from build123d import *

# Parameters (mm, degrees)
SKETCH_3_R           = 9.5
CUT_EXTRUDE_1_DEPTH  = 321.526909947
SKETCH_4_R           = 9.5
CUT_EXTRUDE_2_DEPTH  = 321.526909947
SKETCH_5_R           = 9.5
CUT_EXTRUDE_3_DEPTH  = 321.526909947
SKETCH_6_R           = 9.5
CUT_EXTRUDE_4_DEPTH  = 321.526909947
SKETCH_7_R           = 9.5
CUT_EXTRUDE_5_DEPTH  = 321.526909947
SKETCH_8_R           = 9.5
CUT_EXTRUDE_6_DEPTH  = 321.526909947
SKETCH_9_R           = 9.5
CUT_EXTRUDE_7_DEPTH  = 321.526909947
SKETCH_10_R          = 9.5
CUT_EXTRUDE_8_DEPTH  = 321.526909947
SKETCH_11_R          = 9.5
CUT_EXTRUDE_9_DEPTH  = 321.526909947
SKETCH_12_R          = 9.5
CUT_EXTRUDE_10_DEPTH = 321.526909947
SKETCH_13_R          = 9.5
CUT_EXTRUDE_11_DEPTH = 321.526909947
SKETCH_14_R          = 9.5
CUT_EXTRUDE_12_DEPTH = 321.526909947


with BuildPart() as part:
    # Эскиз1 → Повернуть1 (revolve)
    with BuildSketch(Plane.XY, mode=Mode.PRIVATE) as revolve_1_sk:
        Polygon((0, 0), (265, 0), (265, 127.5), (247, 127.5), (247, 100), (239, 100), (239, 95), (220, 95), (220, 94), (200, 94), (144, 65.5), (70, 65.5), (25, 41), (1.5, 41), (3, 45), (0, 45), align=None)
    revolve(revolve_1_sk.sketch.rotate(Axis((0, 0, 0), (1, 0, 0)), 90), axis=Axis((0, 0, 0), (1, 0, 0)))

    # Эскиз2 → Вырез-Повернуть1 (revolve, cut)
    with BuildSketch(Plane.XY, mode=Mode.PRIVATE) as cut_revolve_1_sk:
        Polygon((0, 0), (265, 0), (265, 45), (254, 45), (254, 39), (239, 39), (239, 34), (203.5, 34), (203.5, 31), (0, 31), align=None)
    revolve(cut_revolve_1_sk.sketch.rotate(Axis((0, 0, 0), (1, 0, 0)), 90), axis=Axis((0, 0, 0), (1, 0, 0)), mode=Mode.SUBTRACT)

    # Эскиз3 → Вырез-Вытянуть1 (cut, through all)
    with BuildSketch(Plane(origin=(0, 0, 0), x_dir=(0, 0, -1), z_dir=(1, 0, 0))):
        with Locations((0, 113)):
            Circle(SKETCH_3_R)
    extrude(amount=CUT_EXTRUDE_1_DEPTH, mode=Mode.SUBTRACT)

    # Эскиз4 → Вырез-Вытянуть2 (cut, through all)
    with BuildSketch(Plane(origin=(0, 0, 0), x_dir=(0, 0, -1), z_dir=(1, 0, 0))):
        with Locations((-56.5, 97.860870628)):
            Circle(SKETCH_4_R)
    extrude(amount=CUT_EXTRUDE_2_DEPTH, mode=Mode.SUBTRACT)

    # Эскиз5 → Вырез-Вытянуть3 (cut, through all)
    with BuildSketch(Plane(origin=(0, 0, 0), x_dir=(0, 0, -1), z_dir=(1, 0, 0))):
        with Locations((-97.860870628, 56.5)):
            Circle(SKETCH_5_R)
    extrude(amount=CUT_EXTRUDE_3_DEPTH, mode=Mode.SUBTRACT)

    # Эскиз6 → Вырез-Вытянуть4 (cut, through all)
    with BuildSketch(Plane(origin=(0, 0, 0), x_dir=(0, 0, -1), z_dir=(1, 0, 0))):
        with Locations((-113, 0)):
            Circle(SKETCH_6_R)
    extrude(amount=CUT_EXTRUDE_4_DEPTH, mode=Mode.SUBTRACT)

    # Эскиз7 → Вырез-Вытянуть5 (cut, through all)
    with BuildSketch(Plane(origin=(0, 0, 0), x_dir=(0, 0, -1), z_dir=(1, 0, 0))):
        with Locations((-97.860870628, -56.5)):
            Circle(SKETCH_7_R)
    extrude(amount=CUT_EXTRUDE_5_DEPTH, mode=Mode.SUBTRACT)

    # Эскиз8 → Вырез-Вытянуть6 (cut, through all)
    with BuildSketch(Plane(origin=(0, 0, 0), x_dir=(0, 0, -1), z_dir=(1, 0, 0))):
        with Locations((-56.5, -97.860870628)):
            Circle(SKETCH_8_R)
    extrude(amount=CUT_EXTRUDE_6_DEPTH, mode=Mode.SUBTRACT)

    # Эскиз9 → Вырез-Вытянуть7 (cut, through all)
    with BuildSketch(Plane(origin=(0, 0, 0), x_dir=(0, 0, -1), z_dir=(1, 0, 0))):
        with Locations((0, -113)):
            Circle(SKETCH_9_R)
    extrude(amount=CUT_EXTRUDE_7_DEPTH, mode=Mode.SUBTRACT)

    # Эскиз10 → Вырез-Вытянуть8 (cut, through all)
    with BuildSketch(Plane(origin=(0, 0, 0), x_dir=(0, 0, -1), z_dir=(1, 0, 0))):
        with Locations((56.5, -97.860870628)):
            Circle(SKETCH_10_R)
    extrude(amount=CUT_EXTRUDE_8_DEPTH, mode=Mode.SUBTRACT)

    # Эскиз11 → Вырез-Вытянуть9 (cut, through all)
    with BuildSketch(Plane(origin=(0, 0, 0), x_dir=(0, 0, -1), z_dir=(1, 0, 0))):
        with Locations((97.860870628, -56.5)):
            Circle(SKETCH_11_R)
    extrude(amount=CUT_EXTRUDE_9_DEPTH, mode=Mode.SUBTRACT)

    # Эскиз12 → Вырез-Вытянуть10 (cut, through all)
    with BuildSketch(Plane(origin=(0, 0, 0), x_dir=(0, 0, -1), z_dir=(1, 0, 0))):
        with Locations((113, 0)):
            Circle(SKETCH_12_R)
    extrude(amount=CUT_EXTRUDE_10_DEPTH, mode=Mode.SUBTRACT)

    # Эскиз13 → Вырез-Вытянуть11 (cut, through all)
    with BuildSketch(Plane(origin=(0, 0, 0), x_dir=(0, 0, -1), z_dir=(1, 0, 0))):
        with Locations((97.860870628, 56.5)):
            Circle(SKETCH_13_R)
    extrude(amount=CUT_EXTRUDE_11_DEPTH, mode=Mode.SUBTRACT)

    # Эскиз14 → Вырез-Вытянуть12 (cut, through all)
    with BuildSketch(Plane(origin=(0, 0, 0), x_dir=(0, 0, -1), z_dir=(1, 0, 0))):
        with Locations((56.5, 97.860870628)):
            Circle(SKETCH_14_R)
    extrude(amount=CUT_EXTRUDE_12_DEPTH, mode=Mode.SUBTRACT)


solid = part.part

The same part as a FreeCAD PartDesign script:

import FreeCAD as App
import Part
import Sketcher
from FreeCAD import Vector

doc = App.newDocument("Part")
params = doc.addObject("Spreadsheet::Sheet", "Params")
for row, (alias, value) in enumerate([
    ("sketch1_width", "265 mm"),
    ("sketch1_width2", "18 mm"),
    ("sketch1_width3", "8 mm"),
    ("sketch1_width4", "19 mm"),
    ("sketch1_width5", "20 mm"),
    ("revolution_angle", "360 deg"),
    ("sketch2_width", "265 mm"),
    ("sketch2_width2", "11 mm"),
    ("sketch2_width3", "15 mm"),
    ("sketch2_height", "45 mm"),
    ("sketch2_height2", "6 mm"),
    ("groove_angle", "360 deg"),
    ("sketch3_diameter", "19 mm"),
    ("sketch4_diameter", "19 mm"),
    ("sketch5_diameter", "19 mm"),
    ("sketch6_diameter", "19 mm"),
    ("sketch7_diameter", "19 mm"),
    ("sketch8_diameter", "19 mm"),
    ("sketch9_diameter", "19 mm"),
    ("sketch10_diameter", "19 mm"),
    ("sketch11_diameter", "19 mm"),
    ("sketch12_diameter", "19 mm"),
    ("sketch13_diameter", "19 mm"),
    ("sketch14_diameter", "19 mm"),
], start=1):
    params.set(f"A{row}", alias)
    params.set(f"B{row}", "=" + value)
    params.setAlias(f"B{row}", alias)

body = doc.addObject("PartDesign::Body", "Body")

# Sketch on XY plane
sketch1 = body.newObject("Sketcher::SketchObject", "Sketch")
sketch1.AttachmentSupport = (doc.getObject("XY_Plane"), [""])
sketch1.MapMode = "FlatFace"
sketch1.addGeometry([
    Part.LineSegment(Vector(0, 0, 0), Vector(265, 0, 0)),  # 0
    Part.LineSegment(Vector(265, 0, 0), Vector(265, 127.5, 0)),  # 1
    Part.LineSegment(Vector(265, 127.5, 0), Vector(247, 127.5, 0)),  # 2
    Part.LineSegment(Vector(247, 127.5, 0), Vector(247, 100, 0)),  # 3
    Part.LineSegment(Vector(247, 100, 0), Vector(239, 100, 0)),  # 4
    Part.LineSegment(Vector(239, 100, 0), Vector(239, 95, 0)),  # 5
    Part.LineSegment(Vector(239, 95, 0), Vector(220, 95, 0)),  # 6
    Part.LineSegment(Vector(220, 95, 0), Vector(220, 94, 0)),  # 7
    Part.LineSegment(Vector(220, 94, 0), Vector(200, 94, 0)),  # 8
    Part.LineSegment(Vector(200, 94, 0), Vector(144, 65.5, 0)),  # 9
    Part.LineSegment(Vector(144, 65.5, 0), Vector(70, 65.5, 0)),  # 10
    Part.LineSegment(Vector(70, 65.5, 0), Vector(25, 41, 0)),  # 11
    Part.LineSegment(Vector(25, 41, 0), Vector(1.5, 41, 0)),  # 12
    Part.LineSegment(Vector(1.5, 41, 0), Vector(3, 45, 0)),  # 13
    Part.LineSegment(Vector(3, 45, 0), Vector(0, 45, 0)),  # 14
    Part.LineSegment(Vector(0, 45, 0), Vector(0, 0, 0)),  # 15
], False)
sketch1.addConstraint([
    Sketcher.Constraint("Coincident", 0, 2, 1, 1),
    Sketcher.Constraint("Coincident", 1, 2, 2, 1),
    Sketcher.Constraint("Coincident", 2, 2, 3, 1),
    Sketcher.Constraint("Coincident", 3, 2, 4, 1),
    Sketcher.Constraint("Coincident", 4, 2, 5, 1),
    Sketcher.Constraint("Coincident", 5, 2, 6, 1),
    Sketcher.Constraint("Coincident", 6, 2, 7, 1),
    Sketcher.Constraint("Coincident", 7, 2, 8, 1),
    Sketcher.Constraint("Coincident", 8, 2, 9, 1),
    Sketcher.Constraint("Coincident", 9, 2, 10, 1),
    Sketcher.Constraint("Coincident", 10, 2, 11, 1),
    Sketcher.Constraint("Coincident", 11, 2, 12, 1),
    Sketcher.Constraint("Coincident", 12, 2, 13, 1),
    Sketcher.Constraint("Coincident", 13, 2, 14, 1),
    Sketcher.Constraint("Coincident", 14, 2, 15, 1),
    Sketcher.Constraint("Coincident", 15, 2, 0, 1),
    Sketcher.Constraint("Horizontal", 0),
    Sketcher.Constraint("Vertical", 1),
    Sketcher.Constraint("Horizontal", 2),
    Sketcher.Constraint("Vertical", 3),
    Sketcher.Constraint("Horizontal", 4),
    Sketcher.Constraint("Vertical", 5),
    Sketcher.Constraint("Horizontal", 6),
    Sketcher.Constraint("Vertical", 7),
    Sketcher.Constraint("Horizontal", 8),
    Sketcher.Constraint("Horizontal", 10),
    Sketcher.Constraint("Horizontal", 12),
    Sketcher.Constraint("Horizontal", 14),
    Sketcher.Constraint("Vertical", 15),
    Sketcher.Constraint("Coincident", 15, 2, -1, 1),
    Sketcher.Constraint("DistanceX", 0, 1, 0, 2, 265.0),
    Sketcher.Constraint("DistanceX", 2, 2, 2, 1, 18.0),
    Sketcher.Constraint("DistanceX", 4, 2, 4, 1, 8.0),
    Sketcher.Constraint("DistanceX", 6, 2, 6, 1, 19.0),
    Sketcher.Constraint("DistanceX", 8, 2, 8, 1, 20.0),
    Sketcher.Constraint("DistanceX", 10, 2, 10, 1, 74.0),
    Sketcher.Constraint("DistanceX", 14, 2, 14, 1, 3.0),
    Sketcher.Constraint("DistanceY", 5, 2, 5, 1, 5.0),
    Sketcher.Constraint("DistanceY", 7, 2, 7, 1, 1.0),
    Sketcher.Constraint("DistanceY", 15, 2, 15, 1, 45.0),
    Sketcher.Constraint("DistanceX", 12, 2, 12, 1, 23.5),
    Sketcher.Constraint("DistanceY", 1, 1, 1, 2, 127.5),
    Sketcher.Constraint("DistanceY", 3, 2, 3, 1, 27.5),
    Sketcher.Constraint("DistanceX", -1, 1, 9, 2, 144.0),
    Sketcher.Constraint("DistanceX", -1, 1, 11, 2, 25.0),
    Sketcher.Constraint("DistanceY", -1, 1, 11, 2, 41.0),
    Sketcher.Constraint("DistanceY", -1, 1, 9, 2, 65.5),
])
sketch1.setExpression("Constraints[30]", "Params.sketch1_width")
sketch1.setExpression("Constraints[31]", "Params.sketch1_width2")
sketch1.setExpression("Constraints[32]", "Params.sketch1_width3")
sketch1.setExpression("Constraints[33]", "Params.sketch1_width4")
sketch1.setExpression("Constraints[34]", "Params.sketch1_width5")
revolution = body.newObject("PartDesign::Revolution", "Revolution")
revolution.Profile = sketch1
revolution.ReferenceAxis = (sketch1, ["H_Axis"])
revolution.setExpression("Angle", "Params.revolution_angle")

# Sketch on XY plane
sketch2 = body.newObject("Sketcher::SketchObject", "Sketch001")
sketch2.AttachmentSupport = (doc.getObject("XY_Plane"), [""])
sketch2.MapMode = "FlatFace"
sketch2.addGeometry([
    Part.LineSegment(Vector(0, 0, 0), Vector(265, 0, 0)),  # 0
    Part.LineSegment(Vector(265, 0, 0), Vector(265, 45, 0)),  # 1
    Part.LineSegment(Vector(265, 45, 0), Vector(254, 45, 0)),  # 2
    Part.LineSegment(Vector(254, 45, 0), Vector(254, 39, 0)),  # 3
    Part.LineSegment(Vector(254, 39, 0), Vector(239, 39, 0)),  # 4
    Part.LineSegment(Vector(239, 39, 0), Vector(239, 34, 0)),  # 5
    Part.LineSegment(Vector(239, 34, 0), Vector(203.5, 34, 0)),  # 6
    Part.LineSegment(Vector(203.5, 34, 0), Vector(203.5, 31, 0)),  # 7
    Part.LineSegment(Vector(203.5, 31, 0), Vector(0, 31, 0)),  # 8
    Part.LineSegment(Vector(0, 31, 0), Vector(0, 0, 0)),  # 9
], False)
sketch2.addConstraint([
    Sketcher.Constraint("Coincident", 0, 2, 1, 1),
    Sketcher.Constraint("Coincident", 1, 2, 2, 1),
    Sketcher.Constraint("Coincident", 2, 2, 3, 1),
    Sketcher.Constraint("Coincident", 3, 2, 4, 1),
    Sketcher.Constraint("Coincident", 4, 2, 5, 1),
    Sketcher.Constraint("Coincident", 5, 2, 6, 1),
    Sketcher.Constraint("Coincident", 6, 2, 7, 1),
    Sketcher.Constraint("Coincident", 7, 2, 8, 1),
    Sketcher.Constraint("Coincident", 8, 2, 9, 1),
    Sketcher.Constraint("Coincident", 9, 2, 0, 1),
    Sketcher.Constraint("Horizontal", 0),
    Sketcher.Constraint("Vertical", 1),
    Sketcher.Constraint("Horizontal", 2),
    Sketcher.Constraint("Vertical", 3),
    Sketcher.Constraint("Horizontal", 4),
    Sketcher.Constraint("Vertical", 5),
    Sketcher.Constraint("Horizontal", 6),
    Sketcher.Constraint("Vertical", 7),
    Sketcher.Constraint("Horizontal", 8),
    Sketcher.Constraint("Vertical", 9),
    Sketcher.Constraint("Coincident", 9, 2, -1, 1),
    Sketcher.Constraint("DistanceX", 0, 1, 0, 2, 265.0),
    Sketcher.Constraint("DistanceX", 2, 2, 2, 1, 11.0),
    Sketcher.Constraint("DistanceX", 4, 2, 4, 1, 15.0),
    Sketcher.Constraint("DistanceY", 1, 1, 1, 2, 45.0),
    Sketcher.Constraint("DistanceY", 3, 2, 3, 1, 6.0),
    Sketcher.Constraint("DistanceY", 5, 2, 5, 1, 5.0),
    Sketcher.Constraint("DistanceY", 7, 2, 7, 1, 3.0),
    Sketcher.Constraint("DistanceX", 6, 2, 6, 1, 35.5),
])
sketch2.setExpression("Constraints[21]", "Params.sketch2_width")
sketch2.setExpression("Constraints[22]", "Params.sketch2_width2")
sketch2.setExpression("Constraints[23]", "Params.sketch2_width3")
sketch2.setExpression("Constraints[24]", "Params.sketch2_height")
sketch2.setExpression("Constraints[25]", "Params.sketch2_height2")
groove = body.newObject("PartDesign::Groove", "Groove")
groove.Profile = sketch2
groove.ReferenceAxis = (sketch2, ["H_Axis"])
groove.setExpression("Angle", "Params.groove_angle")

# Sketch on YZ plane
sketch3 = body.newObject("Sketcher::SketchObject", "Sketch002")
sketch3.AttachmentSupport = (doc.getObject("YZ_Plane"), [""])
sketch3.MapMode = "FlatFace"
sketch3.addGeometry(Part.Circle(Vector(113, 0, 0), Vector(0, 0, 1), 10), False)
sketch3.addConstraint([
    Sketcher.Constraint("PointOnObject", 0, 3, -1),
    Sketcher.Constraint("Diameter", 0, 19.0),
    Sketcher.Constraint("DistanceX", -1, 1, 0, 3, 113.0),
])
sketch3.setExpression("Constraints[1]", "Params.sketch3_diameter")
pocket1 = body.newObject("PartDesign::Pocket", "Pocket")
pocket1.Profile = sketch3
pocket1.Type = "ThroughAll"
pocket1.Reversed = True

# Sketch on YZ plane
sketch4 = body.newObject("Sketcher::SketchObject", "Sketch003")
sketch4.AttachmentSupport = (doc.getObject("YZ_Plane"), [""])
sketch4.MapMode = "FlatFace"
sketch4.addGeometry(Part.Circle(Vector(98, 56, 0), Vector(0, 0, 1), 10), False)
sketch4.addConstraint([
    Sketcher.Constraint("Diameter", 0, 19.0),
    Sketcher.Constraint("DistanceY", -1, 1, 0, 3, 56.5),
    Sketcher.Constraint("DistanceX", -1, 1, 0, 3, 97.860871),
])
sketch4.setExpression("Constraints[0]", "Params.sketch4_diameter")
pocket2 = body.newObject("PartDesign::Pocket", "Pocket001")
pocket2.Profile = sketch4
pocket2.Type = "ThroughAll"
pocket2.Reversed = True

# Sketch on YZ plane
sketch5 = body.newObject("Sketcher::SketchObject", "Sketch004")
sketch5.AttachmentSupport = (doc.getObject("YZ_Plane"), [""])
sketch5.MapMode = "FlatFace"
sketch5.addGeometry(Part.Circle(Vector(56, 98, 0), Vector(0, 0, 1), 10), False)
sketch5.addConstraint([
    Sketcher.Constraint("Diameter", 0, 19.0),
    Sketcher.Constraint("DistanceX", -1, 1, 0, 3, 56.5),
    Sketcher.Constraint("DistanceY", -1, 1, 0, 3, 97.860871),
])
sketch5.setExpression("Constraints[0]", "Params.sketch5_diameter")
pocket3 = body.newObject("PartDesign::Pocket", "Pocket002")
pocket3.Profile = sketch5
pocket3.Type = "ThroughAll"
pocket3.Reversed = True

# Sketch on YZ plane
sketch6 = body.newObject("Sketcher::SketchObject", "Sketch005")
sketch6.AttachmentSupport = (doc.getObject("YZ_Plane"), [""])
sketch6.MapMode = "FlatFace"
sketch6.addGeometry(Part.Circle(Vector(0, 113, 0), Vector(0, 0, 1), 10), False)
sketch6.addConstraint([
    Sketcher.Constraint("PointOnObject", 0, 3, -2),
    Sketcher.Constraint("Diameter", 0, 19.0),
    Sketcher.Constraint("DistanceY", -1, 1, 0, 3, 113.0),
])
sketch6.setExpression("Constraints[1]", "Params.sketch6_diameter")
pocket4 = body.newObject("PartDesign::Pocket", "Pocket003")
pocket4.Profile = sketch6
pocket4.Type = "ThroughAll"
pocket4.Reversed = True

# Sketch on YZ plane
sketch7 = body.newObject("Sketcher::SketchObject", "Sketch006")
sketch7.AttachmentSupport = (doc.getObject("YZ_Plane"), [""])
sketch7.MapMode = "FlatFace"
sketch7.addGeometry(Part.Circle(Vector(-56, 98, 0), Vector(0, 0, 1), 10), False)
sketch7.addConstraint([
    Sketcher.Constraint("Diameter", 0, 19.0),
    Sketcher.Constraint("DistanceX", 0, 3, -1, 1, 56.5),
    Sketcher.Constraint("DistanceY", -1, 1, 0, 3, 97.860871),
])
sketch7.setExpression("Constraints[0]", "Params.sketch7_diameter")
pocket5 = body.newObject("PartDesign::Pocket", "Pocket004")
pocket5.Profile = sketch7
pocket5.Type = "ThroughAll"
pocket5.Reversed = True

# Sketch on YZ plane
sketch8 = body.newObject("Sketcher::SketchObject", "Sketch007")
sketch8.AttachmentSupport = (doc.getObject("YZ_Plane"), [""])
sketch8.MapMode = "FlatFace"
sketch8.addGeometry(Part.Circle(Vector(-98, 56, 0), Vector(0, 0, 1), 10), False)
sketch8.addConstraint([
    Sketcher.Constraint("Diameter", 0, 19.0),
    Sketcher.Constraint("DistanceY", -1, 1, 0, 3, 56.5),
    Sketcher.Constraint("DistanceX", 0, 3, -1, 1, 97.860871),
])
sketch8.setExpression("Constraints[0]", "Params.sketch8_diameter")
pocket6 = body.newObject("PartDesign::Pocket", "Pocket005")
pocket6.Profile = sketch8
pocket6.Type = "ThroughAll"
pocket6.Reversed = True

# Sketch on YZ plane
sketch9 = body.newObject("Sketcher::SketchObject", "Sketch008")
sketch9.AttachmentSupport = (doc.getObject("YZ_Plane"), [""])
sketch9.MapMode = "FlatFace"
sketch9.addGeometry(Part.Circle(Vector(-113, 0, 0), Vector(0, 0, 1), 10), False)
sketch9.addConstraint([
    Sketcher.Constraint("PointOnObject", 0, 3, -1),
    Sketcher.Constraint("Diameter", 0, 19.0),
    Sketcher.Constraint("DistanceX", 0, 3, -1, 1, 113.0),
])
sketch9.setExpression("Constraints[1]", "Params.sketch9_diameter")
pocket7 = body.newObject("PartDesign::Pocket", "Pocket006")
pocket7.Profile = sketch9
pocket7.Type = "ThroughAll"
pocket7.Reversed = True

# Sketch on YZ plane
sketch10 = body.newObject("Sketcher::SketchObject", "Sketch009")
sketch10.AttachmentSupport = (doc.getObject("YZ_Plane"), [""])
sketch10.MapMode = "FlatFace"
sketch10.addGeometry(Part.Circle(Vector(-98, -56, 0), Vector(0, 0, 1), 10), False)
sketch10.addConstraint([
    Sketcher.Constraint("Diameter", 0, 19.0),
    Sketcher.Constraint("DistanceY", 0, 3, -1, 1, 56.5),
    Sketcher.Constraint("DistanceX", 0, 3, -1, 1, 97.860871),
])
sketch10.setExpression("Constraints[0]", "Params.sketch10_diameter")
pocket8 = body.newObject("PartDesign::Pocket", "Pocket007")
pocket8.Profile = sketch10
pocket8.Type = "ThroughAll"
pocket8.Reversed = True

# Sketch on YZ plane
sketch11 = body.newObject("Sketcher::SketchObject", "Sketch010")
sketch11.AttachmentSupport = (doc.getObject("YZ_Plane"), [""])
sketch11.MapMode = "FlatFace"
sketch11.addGeometry(Part.Circle(Vector(-56, -98, 0), Vector(0, 0, 1), 10), False)
sketch11.addConstraint([
    Sketcher.Constraint("Diameter", 0, 19.0),
    Sketcher.Constraint("DistanceX", 0, 3, -1, 1, 56.5),
    Sketcher.Constraint("DistanceY", 0, 3, -1, 1, 97.860871),
])
sketch11.setExpression("Constraints[0]", "Params.sketch11_diameter")
pocket9 = body.newObject("PartDesign::Pocket", "Pocket008")
pocket9.Profile = sketch11
pocket9.Type = "ThroughAll"
pocket9.Reversed = True

# Sketch on YZ plane
sketch12 = body.newObject("Sketcher::SketchObject", "Sketch011")
sketch12.AttachmentSupport = (doc.getObject("YZ_Plane"), [""])
sketch12.MapMode = "FlatFace"
sketch12.addGeometry(Part.Circle(Vector(0, -113, 0), Vector(0, 0, 1), 10), False)
sketch12.addConstraint([
    Sketcher.Constraint("PointOnObject", 0, 3, -2),
    Sketcher.Constraint("Diameter", 0, 19.0),
    Sketcher.Constraint("DistanceY", 0, 3, -1, 1, 113.0),
])
sketch12.setExpression("Constraints[1]", "Params.sketch12_diameter")
pocket10 = body.newObject("PartDesign::Pocket", "Pocket009")
pocket10.Profile = sketch12
pocket10.Type = "ThroughAll"
pocket10.Reversed = True

# Sketch on YZ plane
sketch13 = body.newObject("Sketcher::SketchObject", "Sketch012")
sketch13.AttachmentSupport = (doc.getObject("YZ_Plane"), [""])
sketch13.MapMode = "FlatFace"
sketch13.addGeometry(Part.Circle(Vector(56, -98, 0), Vector(0, 0, 1), 10), False)
sketch13.addConstraint([
    Sketcher.Constraint("Diameter", 0, 19.0),
    Sketcher.Constraint("DistanceX", -1, 1, 0, 3, 56.5),
    Sketcher.Constraint("DistanceY", 0, 3, -1, 1, 97.860871),
])
sketch13.setExpression("Constraints[0]", "Params.sketch13_diameter")
pocket11 = body.newObject("PartDesign::Pocket", "Pocket010")
pocket11.Profile = sketch13
pocket11.Type = "ThroughAll"
pocket11.Reversed = True

# Sketch on YZ plane
sketch14 = body.newObject("Sketcher::SketchObject", "Sketch013")
sketch14.AttachmentSupport = (doc.getObject("YZ_Plane"), [""])
sketch14.MapMode = "FlatFace"
sketch14.addGeometry(Part.Circle(Vector(98, -56, 0), Vector(0, 0, 1), 10), False)
sketch14.addConstraint([
    Sketcher.Constraint("Diameter", 0, 19.0),
    Sketcher.Constraint("DistanceY", 0, 3, -1, 1, 56.5),
    Sketcher.Constraint("DistanceX", -1, 1, 0, 3, 97.860871),
])
sketch14.setExpression("Constraints[0]", "Params.sketch14_diameter")
pocket12 = body.newObject("PartDesign::Pocket", "Pocket011")
pocket12.Profile = sketch14
pocket12.Type = "ThroughAll"
pocket12.Reversed = True

doc.recompute()
